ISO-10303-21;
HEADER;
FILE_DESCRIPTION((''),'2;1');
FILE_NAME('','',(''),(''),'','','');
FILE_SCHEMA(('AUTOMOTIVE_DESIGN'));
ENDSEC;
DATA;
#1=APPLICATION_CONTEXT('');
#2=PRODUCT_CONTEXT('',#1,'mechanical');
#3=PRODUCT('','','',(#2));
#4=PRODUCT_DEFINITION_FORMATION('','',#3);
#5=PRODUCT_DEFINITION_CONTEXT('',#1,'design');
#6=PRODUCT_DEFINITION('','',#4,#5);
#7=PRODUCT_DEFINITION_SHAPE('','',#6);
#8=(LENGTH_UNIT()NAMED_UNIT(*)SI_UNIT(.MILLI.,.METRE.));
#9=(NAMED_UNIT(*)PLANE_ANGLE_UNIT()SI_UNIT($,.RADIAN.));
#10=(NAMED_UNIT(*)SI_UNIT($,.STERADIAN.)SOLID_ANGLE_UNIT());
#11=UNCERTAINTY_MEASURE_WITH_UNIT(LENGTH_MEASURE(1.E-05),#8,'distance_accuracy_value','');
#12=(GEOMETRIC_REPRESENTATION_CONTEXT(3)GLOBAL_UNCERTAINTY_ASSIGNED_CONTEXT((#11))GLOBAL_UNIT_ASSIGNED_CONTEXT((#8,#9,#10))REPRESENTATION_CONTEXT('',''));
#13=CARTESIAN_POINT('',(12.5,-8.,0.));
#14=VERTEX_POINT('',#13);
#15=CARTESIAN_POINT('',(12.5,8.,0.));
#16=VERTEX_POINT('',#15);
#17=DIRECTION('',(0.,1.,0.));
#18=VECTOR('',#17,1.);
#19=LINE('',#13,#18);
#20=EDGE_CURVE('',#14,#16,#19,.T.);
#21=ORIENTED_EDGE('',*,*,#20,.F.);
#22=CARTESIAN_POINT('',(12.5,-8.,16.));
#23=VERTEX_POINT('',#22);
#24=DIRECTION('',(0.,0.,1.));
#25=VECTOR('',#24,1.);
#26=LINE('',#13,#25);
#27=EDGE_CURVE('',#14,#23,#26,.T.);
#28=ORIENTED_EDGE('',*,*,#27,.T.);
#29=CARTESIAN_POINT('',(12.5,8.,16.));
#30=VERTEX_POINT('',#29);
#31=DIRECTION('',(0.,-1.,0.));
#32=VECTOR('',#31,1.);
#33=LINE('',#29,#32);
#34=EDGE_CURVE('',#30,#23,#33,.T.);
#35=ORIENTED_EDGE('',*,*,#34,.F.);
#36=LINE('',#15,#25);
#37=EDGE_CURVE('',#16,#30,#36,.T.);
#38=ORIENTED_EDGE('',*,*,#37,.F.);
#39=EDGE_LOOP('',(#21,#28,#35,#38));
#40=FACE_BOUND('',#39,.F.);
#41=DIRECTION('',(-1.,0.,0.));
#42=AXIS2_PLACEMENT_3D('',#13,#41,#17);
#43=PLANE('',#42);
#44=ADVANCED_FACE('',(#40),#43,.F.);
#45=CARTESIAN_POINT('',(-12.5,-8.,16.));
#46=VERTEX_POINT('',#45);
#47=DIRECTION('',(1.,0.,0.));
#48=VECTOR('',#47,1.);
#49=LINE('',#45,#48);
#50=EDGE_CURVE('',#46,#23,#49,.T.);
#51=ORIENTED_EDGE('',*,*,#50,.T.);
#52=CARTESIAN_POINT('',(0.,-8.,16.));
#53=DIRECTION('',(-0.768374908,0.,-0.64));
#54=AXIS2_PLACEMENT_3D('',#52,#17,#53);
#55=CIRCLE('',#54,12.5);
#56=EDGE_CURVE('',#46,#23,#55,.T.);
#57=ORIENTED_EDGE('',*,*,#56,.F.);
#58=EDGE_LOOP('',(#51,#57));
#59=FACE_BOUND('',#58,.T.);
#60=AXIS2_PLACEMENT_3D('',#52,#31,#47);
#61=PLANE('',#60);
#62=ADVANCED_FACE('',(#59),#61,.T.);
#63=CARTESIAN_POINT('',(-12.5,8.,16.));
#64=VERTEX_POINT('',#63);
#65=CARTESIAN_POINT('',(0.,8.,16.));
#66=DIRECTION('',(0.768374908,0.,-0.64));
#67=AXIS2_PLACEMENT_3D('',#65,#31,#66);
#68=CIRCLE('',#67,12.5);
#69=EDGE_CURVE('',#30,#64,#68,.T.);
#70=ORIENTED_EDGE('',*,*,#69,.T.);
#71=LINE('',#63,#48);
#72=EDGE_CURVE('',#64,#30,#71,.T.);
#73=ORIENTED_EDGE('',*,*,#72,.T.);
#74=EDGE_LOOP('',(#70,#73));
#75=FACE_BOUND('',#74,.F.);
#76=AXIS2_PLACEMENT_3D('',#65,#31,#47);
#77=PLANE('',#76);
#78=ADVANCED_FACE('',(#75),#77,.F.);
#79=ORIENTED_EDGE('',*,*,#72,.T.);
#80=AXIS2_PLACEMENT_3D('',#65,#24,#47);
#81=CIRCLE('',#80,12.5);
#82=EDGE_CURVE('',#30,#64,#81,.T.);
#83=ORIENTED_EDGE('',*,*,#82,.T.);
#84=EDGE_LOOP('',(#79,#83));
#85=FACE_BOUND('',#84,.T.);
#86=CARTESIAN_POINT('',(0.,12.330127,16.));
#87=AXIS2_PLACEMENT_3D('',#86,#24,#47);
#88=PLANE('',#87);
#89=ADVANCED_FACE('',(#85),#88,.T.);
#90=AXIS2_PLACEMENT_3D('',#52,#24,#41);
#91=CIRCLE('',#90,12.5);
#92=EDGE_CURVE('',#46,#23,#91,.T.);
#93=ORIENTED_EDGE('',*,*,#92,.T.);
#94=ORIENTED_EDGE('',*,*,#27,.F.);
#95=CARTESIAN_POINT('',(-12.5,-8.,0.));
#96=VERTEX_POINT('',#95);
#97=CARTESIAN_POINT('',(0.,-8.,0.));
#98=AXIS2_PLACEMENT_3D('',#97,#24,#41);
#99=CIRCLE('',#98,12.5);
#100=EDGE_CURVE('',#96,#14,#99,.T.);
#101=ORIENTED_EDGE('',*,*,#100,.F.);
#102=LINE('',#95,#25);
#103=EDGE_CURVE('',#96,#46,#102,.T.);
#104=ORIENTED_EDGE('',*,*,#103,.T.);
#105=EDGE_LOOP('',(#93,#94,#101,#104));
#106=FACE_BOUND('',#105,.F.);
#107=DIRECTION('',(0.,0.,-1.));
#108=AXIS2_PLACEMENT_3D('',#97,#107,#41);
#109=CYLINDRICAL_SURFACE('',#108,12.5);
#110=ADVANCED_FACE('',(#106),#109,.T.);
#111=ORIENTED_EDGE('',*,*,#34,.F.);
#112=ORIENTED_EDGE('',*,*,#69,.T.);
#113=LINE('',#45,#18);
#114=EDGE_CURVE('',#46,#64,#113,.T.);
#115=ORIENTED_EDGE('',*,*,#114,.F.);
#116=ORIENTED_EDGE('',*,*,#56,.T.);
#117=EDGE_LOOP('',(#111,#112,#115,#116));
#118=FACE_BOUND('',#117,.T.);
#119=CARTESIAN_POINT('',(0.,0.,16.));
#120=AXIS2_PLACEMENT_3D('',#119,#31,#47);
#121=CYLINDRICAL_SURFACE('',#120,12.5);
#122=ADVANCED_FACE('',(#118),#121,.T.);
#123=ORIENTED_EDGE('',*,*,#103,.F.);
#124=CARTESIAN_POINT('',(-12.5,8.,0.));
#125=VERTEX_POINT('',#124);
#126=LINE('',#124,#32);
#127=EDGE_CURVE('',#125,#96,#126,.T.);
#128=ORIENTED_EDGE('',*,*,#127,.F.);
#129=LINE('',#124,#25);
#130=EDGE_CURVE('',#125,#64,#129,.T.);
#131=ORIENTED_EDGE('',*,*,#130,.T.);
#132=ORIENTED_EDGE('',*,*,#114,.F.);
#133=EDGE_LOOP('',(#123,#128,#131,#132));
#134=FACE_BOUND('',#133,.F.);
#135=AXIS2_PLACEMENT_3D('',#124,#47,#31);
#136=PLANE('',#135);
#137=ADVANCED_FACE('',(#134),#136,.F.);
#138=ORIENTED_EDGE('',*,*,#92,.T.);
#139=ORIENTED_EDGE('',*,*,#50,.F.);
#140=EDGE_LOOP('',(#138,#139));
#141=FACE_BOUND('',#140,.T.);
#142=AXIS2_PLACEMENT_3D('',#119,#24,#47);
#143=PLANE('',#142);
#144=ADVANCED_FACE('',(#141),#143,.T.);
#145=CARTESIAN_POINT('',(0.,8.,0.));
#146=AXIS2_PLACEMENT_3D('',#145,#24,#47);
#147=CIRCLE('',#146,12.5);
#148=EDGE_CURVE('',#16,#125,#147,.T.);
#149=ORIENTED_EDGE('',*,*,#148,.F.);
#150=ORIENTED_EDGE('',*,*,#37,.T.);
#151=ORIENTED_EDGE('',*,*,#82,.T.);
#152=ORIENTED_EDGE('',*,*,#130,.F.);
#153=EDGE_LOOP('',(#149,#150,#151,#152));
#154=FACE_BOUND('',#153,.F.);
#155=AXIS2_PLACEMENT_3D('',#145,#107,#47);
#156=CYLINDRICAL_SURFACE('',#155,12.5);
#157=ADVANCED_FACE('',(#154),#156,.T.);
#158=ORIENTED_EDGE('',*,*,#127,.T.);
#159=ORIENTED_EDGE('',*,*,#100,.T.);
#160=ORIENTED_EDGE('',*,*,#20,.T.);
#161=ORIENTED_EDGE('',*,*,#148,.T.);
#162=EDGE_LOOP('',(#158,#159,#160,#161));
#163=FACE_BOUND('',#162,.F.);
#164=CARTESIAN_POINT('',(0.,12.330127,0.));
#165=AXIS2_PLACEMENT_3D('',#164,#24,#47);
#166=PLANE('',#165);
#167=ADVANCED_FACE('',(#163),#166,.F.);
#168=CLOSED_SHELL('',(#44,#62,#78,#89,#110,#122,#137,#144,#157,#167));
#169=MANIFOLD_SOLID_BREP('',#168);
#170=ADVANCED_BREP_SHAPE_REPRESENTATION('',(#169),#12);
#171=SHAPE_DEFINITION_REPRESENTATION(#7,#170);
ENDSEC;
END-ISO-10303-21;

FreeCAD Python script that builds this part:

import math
import FreeCAD as App
import Part
import Sketcher

V = App.Vector

doc = App.newDocument("Part")
body = doc.addObject("PartDesign::Body", "Body")

sketch1 = doc.addObject("Sketcher::SketchObject", "Sketch")
body.addObject(sketch1)
sketch1.AttachmentSupport = (doc.XY_Plane, [""])
sketch1.MapMode = "FlatFace"
sketch1.addGeometry(Part.Circle(V(0, 0, 0), V(0, 0, 1), 12), False)
sketch1.addConstraint([
    Sketcher.Constraint("Coincident", 0, 3, -1, 1),
    Sketcher.Constraint("Diameter", 0, 25.0),
])
pad1 = doc.addObject("PartDesign::Pad", "Pad")
body.addObject(pad1)
pad1.Profile = sketch1
pad1.Length = 16

sketch2 = doc.addObject("Sketcher::SketchObject", "Sketch001")
body.addObject(sketch2)
sketch2.AttachmentSupport = (doc.XZ_Plane, [""])
sketch2.MapMode = "FlatFace"
sketch2.addGeometry(Part.Circle(V(0, 16, 0), V(0, 0, 1), 12), False)
sketch2.addConstraint([
    Sketcher.Constraint("PointOnObject", 0, 3, -2),
    Sketcher.Constraint("Diameter", 0, 25.0),
    Sketcher.Constraint("DistanceY", -1, 1, 0, 3, 16.0),
])
pad2 = doc.addObject("PartDesign::Pad", "Pad001")
body.addObject(pad2)
pad2.Profile = sketch2
pad2.Type = "TwoLengths"
pad2.Length = 8
pad2.Length2 = 8

sketch3 = doc.addObject("Sketcher::SketchObject", "Sketch002")
body.addObject(sketch3)
sketch3.AttachmentSupport = (doc.XY_Plane, [""])
sketch3.MapMode = "FlatFace"
sketch3.addGeometry([
    Part.ArcOfCircle(Part.Circle(V(0, 8, 0), V(0, 0, 1), 12), math.radians(0), math.radians(180)),
    Part.LineSegment(V(-12, 8, 0), V(-12, -8, 0)),
    Part.ArcOfCircle(Part.Circle(V(0, -8, 0), V(0, 0, 1), 12), math.radians(180), math.radians(360)),
    Part.LineSegment(V(12, -8, 0), V(12, 8, 0)),
    Part.ArcOfCircle(Part.Circle(V(0, -8, 0), V(0, 0, 1), 12), math.radians(40), math.radians(140)),
    Part.ArcOfCircle(Part.Circle(V(0, 8, 0), V(0, 0, 1), 12), math.radians(-140), math.radians(-40)),
], False)
sketch3.addConstraint([
    Sketcher.Constraint("Tangent", 0, 2, 1, 1),
    Sketcher.Constraint("Tangent", 1, 2, 2, 1),
    Sketcher.Constraint("Tangent", 2, 2, 3, 1),
    Sketcher.Constraint("Tangent", 3, 2, 0, 1),
    Sketcher.Constraint("Coincident", 4, 1, 5, 2),
    Sketcher.Constraint("Coincident", 5, 1, 4, 2),
    Sketcher.Constraint("Vertical", 1),
    Sketcher.Constraint("Vertical", 3),
    Sketcher.Constraint("Coincident", 4, 3, 2, 3),
    Sketcher.Constraint("Coincident", 5, 3, 0, 3),
    Sketcher.Constraint("Equal", 2, 4),
    Sketcher.Constraint("Equal", 4, 5),
    Sketcher.Constraint("Symmetric", 0, 3, 2, 3, -1, 1),
    Sketcher.Constraint("Radius", 0, 12.5),
    Sketcher.Constraint("DistanceY", 1, 2, 1, 1, 16.0),
])
pad3 = doc.addObject("PartDesign::Pad", "Pad002")
body.addObject(pad3)
pad3.Profile = sketch3
pad3.Length = 16

doc.recompute()
